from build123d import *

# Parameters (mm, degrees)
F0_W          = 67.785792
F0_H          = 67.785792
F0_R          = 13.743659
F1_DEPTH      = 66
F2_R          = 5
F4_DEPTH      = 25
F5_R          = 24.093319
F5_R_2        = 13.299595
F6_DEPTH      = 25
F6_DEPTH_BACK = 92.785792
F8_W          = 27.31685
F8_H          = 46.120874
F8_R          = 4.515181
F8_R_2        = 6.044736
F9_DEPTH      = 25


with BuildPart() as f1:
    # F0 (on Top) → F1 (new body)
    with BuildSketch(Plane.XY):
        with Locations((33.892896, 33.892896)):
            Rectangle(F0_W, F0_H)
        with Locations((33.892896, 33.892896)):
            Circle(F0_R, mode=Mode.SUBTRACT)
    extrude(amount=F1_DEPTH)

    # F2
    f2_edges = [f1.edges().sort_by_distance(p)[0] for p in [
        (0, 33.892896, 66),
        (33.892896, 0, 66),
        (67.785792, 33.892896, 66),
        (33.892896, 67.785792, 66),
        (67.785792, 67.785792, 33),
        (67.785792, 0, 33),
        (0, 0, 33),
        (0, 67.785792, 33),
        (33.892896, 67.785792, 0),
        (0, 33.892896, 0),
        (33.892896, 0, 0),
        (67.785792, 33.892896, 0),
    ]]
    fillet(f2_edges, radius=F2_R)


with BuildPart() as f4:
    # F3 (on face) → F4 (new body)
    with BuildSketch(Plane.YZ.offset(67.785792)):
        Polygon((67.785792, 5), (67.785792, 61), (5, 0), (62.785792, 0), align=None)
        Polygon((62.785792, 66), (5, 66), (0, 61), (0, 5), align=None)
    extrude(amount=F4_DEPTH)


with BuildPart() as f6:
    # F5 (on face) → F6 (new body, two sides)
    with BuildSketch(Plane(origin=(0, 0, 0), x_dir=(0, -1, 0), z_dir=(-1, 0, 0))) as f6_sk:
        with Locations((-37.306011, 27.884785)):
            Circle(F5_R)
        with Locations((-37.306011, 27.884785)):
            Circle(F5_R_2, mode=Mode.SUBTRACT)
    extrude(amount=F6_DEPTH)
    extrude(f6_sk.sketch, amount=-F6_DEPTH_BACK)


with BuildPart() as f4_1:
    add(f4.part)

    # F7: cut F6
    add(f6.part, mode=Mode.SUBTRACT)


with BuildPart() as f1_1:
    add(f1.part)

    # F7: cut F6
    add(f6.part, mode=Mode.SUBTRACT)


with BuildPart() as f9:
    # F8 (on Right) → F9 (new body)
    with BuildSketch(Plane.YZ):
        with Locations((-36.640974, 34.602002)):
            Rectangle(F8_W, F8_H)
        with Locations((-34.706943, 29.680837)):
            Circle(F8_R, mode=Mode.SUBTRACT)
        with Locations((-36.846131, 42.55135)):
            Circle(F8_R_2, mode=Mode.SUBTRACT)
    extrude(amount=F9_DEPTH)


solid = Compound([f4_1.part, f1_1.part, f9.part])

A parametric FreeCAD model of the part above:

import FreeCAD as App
import Part
import Sketcher
Q = App.Units.Quantity


def edges_at(feature, points):
    """Names of the edges that pass closest to the given points."""
    edges = feature.Shape.Edges
    near = lambda p: min(range(len(edges)), key=lambda i: edges[i].distToShape(Part.Vertex(*p))[0])
    return sorted({f"Edge{near(p) + 1}" for p in points})


def add_polygon(sketch, points):
    """Adds a closed chain of lines whose ends are joined by coincident constraints."""
    first, n = sketch.GeometryCount, len(points)
    for a, b in zip(points, points[1:] + points[:1]):
        sketch.addGeometry(Part.LineSegment(App.Vector(*a, 0), App.Vector(*b, 0)), False)
    for i in range(n):
        sketch.addConstraint(Sketcher.Constraint("Coincident", first + i, 2, first + (i + 1) % n, 1))

doc = App.newDocument("Part")
body = doc.addObject("PartDesign::Body", "Body")

sketch1 = body.newObject("Sketcher::SketchObject", "Sketch")
sketch1.AttachmentSupport = (doc.getObject("XY_Plane"), [""])
sketch1.MapMode = "FlatFace"
add_polygon(sketch1, [(0, 68), (0, 0), (68, 0), (68, 68)])
sketch1.addGeometry(Part.Circle(App.Vector(34, 34, 0), App.Vector(0, 0, 1), 14), False)
sketch1.addConstraint([
    Sketcher.Constraint("Vertical", 0),
    Sketcher.Constraint("Horizontal", 1),
    Sketcher.Constraint("Vertical", 2),
    Sketcher.Constraint("Horizontal", 3),
    Sketcher.Constraint("Coincident", 0, 2, -1, 1),
    Sketcher.Constraint("Equal", 3, 0),
    Sketcher.Constraint("Diameter", 4, Q("27.487318 mm")),
    Sketcher.Constraint("DistanceX", 1, 1, 1, 2, Q("67.785792 mm")),
    Sketcher.Constraint("DistanceX", -1, 1, 4, 3, Q("33.892896 mm")),
    Sketcher.Constraint("DistanceY", -1, 1, 4, 3, Q("33.892896 mm")),
])
pad1 = body.newObject("PartDesign::Pad", "Pad")
pad1.Profile = sketch1
pad1.Length = 66
doc.recompute()

fillet = body.newObject("PartDesign::Fillet", "Fillet")
fillet.Base = (pad1, edges_at(pad1, [
    (0, 33.893, 66),
    (33.893, 0, 66),
    (67.786, 33.893, 66),
    (33.893, 67.786, 66),
    (67.786, 67.786, 33),
    (67.786, 0, 33),
    (0, 0, 33),
    (0, 67.786, 33),
    (33.893, 67.786, 0),
    (0, 33.893, 0),
    (33.893, 0, 0),
    (67.786, 33.893, 0),
]))
fillet.Radius = 5
body2 = doc.addObject("PartDesign::Body", "Body001")
body2.AllowCompound = True

sketch2 = body2.newObject("Sketcher::SketchObject", "Sketch001")
sketch2.AttachmentSupport = (doc.getObject("YZ_Plane001"), [""])
sketch2.MapMode = "FlatFace"
sketch2.AttachmentOffset = App.Placement(App.Vector(0, 0, 67.785792), App.Rotation())
add_polygon(sketch2, [(68, 5), (68, 61), (5, 0), (63, 0)])
add_polygon(sketch2, [(63, 66), (5, 66), (0, 61), (0, 5)])
sketch2.addConstraint([
    Sketcher.Constraint("Vertical", 0),
    Sketcher.Constraint("Horizontal", 2),
    Sketcher.Constraint("Horizontal", 4),
    Sketcher.Constraint("Vertical", 6),
    Sketcher.Constraint("PointOnObject", 1, 2, -1),
    Sketcher.Constraint("PointOnObject", 5, 2, -2),
    Sketcher.Constraint("Parallel", 3, 5),
    Sketcher.Constraint("Parallel", 1, 7),
    Sketcher.Constraint("Horizontal", 0, 2, 5, 2),
    Sketcher.Constraint("Horizontal", 3, 2, 6, 2),
    Sketcher.Constraint("Vertical", 1, 2, 4, 2),
    Sketcher.Constraint("Vertical", 2, 2, 7, 2),
    Sketcher.Constraint("DistanceY", 0, 1, 0, 2, Q("56 mm")),
    Sketcher.Constraint("Angle", 3, Q("45 deg")),
    Sketcher.Constraint("DistanceY", -1, 1, 0, 2, Q("61 mm")),
    Sketcher.Constraint("Distance", 1, Q("87.538881 mm")),
])
pad2 = body2.newObject("PartDesign::Pad", "Pad001")
pad2.Profile = sketch2
pad2.Length = 25
body3 = doc.addObject("PartDesign::Body", "Body002")

sketch3 = body3.newObject("Sketcher::SketchObject", "Sketch002")
sketch3.AttachmentSupport = (doc.getObject("YZ_Plane002"), [""])
sketch3.MapMode = "FlatFace"
sketch3.addGeometry([
    Part.Circle(App.Vector(37, 28, 0), App.Vector(0, 0, 1), 24),
    Part.Circle(App.Vector(37, 28, 0), App.Vector(0, 0, 1), 13),
], False)
sketch3.addConstraint([
    Sketcher.Constraint("Coincident", 1, 3, 0, 3),
    Sketcher.Constraint("Diameter", 0, Q("48.186638 mm")),
    Sketcher.Constraint("Diameter", 1, Q("26.59919 mm")),
    Sketcher.Constraint("DistanceX", -1, 1, 0, 3, Q("37.306011 mm")),
    Sketcher.Constraint("DistanceY", -1, 1, 0, 3, Q("27.884785 mm")),
])
pad3 = body3.newObject("PartDesign::Pad", "Pad002")
pad3.Profile = sketch3
pad3.Type = "TwoLengths"
pad3.Length = 25
pad3.Length2 = 92.785792
pad3.Reversed = True
body2.AllowCompound = True
doc.recompute()

body4 = doc.addObject("PartDesign::Body", "Body003")
body4.BaseFeature = body3
boolean = body2.newObject("PartDesign::Boolean", "Boolean")
boolean.Type = "Cut"
boolean.addObjects([body4])
doc.recompute()
body.AllowCompound = True
doc.recompute()

boolean2 = body.newObject("PartDesign::Boolean", "Boolean001")
boolean2.Type = "Cut"
boolean2.addObjects([body3])
body5 = doc.addObject("PartDesign::Body", "Body004")

sketch4 = body5.newObject("Sketcher::SketchObject", "Sketch003")
sketch4.AttachmentSupport = (doc.getObject("YZ_Plane004"), [""])
sketch4.MapMode = "FlatFace"
add_polygon(sketch4, [(-50.3, 57.7), (-50.3, 11.5), (-23, 11.5), (-23, 57.7)])
sketch4.addGeometry(Part.Circle(App.Vector(-34.7, 29.7, 0), App.Vector(0, 0, 1), 4.5), False)
sketch4.addGeometry(Part.Circle(App.Vector(-36.8, 42.6, 0), App.Vector(0, 0, 1), 6), False)
sketch4.addConstraint([
    Sketcher.Constraint("Vertical", 0),
    Sketcher.Constraint("Horizontal", 1),
    Sketcher.Constraint("Vertical", 2),
    Sketcher.Constraint("Horizontal", 3),
    Sketcher.Constraint("Diameter", 4, Q("9.030362 mm")),
    Sketcher.Constraint("Diameter", 5, Q("12.089472 mm")),
    Sketcher.Constraint("DistanceX", 1, 1, 1, 2, Q("27.31685 mm")),
    Sketcher.Constraint("DistanceX", 0, 2, -1, 1, Q("50.299399 mm")),
    Sketcher.Constraint("DistanceY", 4, 3, 2, 2, Q("27.981602 mm")),
    Sketcher.Constraint("DistanceY", 0, 2, 0, 1, Q("46.120874 mm")),
    Sketcher.Constraint("DistanceX", 5, 3, -1, 1, Q("36.846131 mm")),
    Sketcher.Constraint("DistanceY", -1, 1, 5, 3, Q("42.55135 mm")),
    Sketcher.Constraint("DistanceY", -1, 1, 2, 2, Q("57.662439 mm")),
    Sketcher.Constraint("DistanceX", 4, 3, -1, 1, Q("34.706943 mm")),
])
pad4 = body5.newObject("PartDesign::Pad", "Pad003")
pad4.Profile = sketch4
pad4.Length = 25

doc.recompute()
